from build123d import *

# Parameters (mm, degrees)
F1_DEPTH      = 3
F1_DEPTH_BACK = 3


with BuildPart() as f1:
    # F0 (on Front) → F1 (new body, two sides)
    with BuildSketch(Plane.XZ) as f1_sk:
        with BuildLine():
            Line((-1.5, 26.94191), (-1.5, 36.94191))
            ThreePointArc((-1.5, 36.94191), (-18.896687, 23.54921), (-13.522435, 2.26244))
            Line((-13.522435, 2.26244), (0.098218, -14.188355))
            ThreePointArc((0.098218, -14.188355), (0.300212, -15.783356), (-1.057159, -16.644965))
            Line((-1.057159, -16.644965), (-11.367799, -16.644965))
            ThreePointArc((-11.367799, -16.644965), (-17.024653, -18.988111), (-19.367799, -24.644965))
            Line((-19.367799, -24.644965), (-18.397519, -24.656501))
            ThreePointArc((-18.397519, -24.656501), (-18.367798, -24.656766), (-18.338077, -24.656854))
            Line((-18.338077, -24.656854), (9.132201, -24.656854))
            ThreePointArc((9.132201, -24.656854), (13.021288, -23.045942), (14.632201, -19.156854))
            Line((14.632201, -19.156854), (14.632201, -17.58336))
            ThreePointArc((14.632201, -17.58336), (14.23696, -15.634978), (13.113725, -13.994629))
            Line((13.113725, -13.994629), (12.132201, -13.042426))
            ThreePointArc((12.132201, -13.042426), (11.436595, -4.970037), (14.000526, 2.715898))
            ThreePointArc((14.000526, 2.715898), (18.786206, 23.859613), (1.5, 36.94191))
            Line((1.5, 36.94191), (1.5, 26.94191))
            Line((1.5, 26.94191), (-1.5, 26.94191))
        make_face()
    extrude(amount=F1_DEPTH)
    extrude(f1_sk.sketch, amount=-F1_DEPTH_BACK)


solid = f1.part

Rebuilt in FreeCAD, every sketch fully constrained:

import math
import FreeCAD as App
import Part
import Sketcher
from FreeCAD import Vector

doc = App.newDocument("Part")
params = doc.addObject("Spreadsheet::Sheet", "Params")
for row, (alias, value) in enumerate([
    ("sketch1_radius", "20.000001 mm"),
    ("sketch1_radius2", "8.000001 mm"),
    ("sketch1_radius3", "1.5 mm"),
    ("sketch1_radius4", "5.499999 mm"),
    ("sketch1_width", "3 mm"),
    ("pad1_length", "3 mm"),
    ("pad1_length2", "3 mm"),
], start=1):
    params.set(f"A{row}", alias)
    params.set(f"B{row}", "=" + value)
    params.setAlias(f"B{row}", alias)

body = doc.addObject("PartDesign::Body", "Body")

# Sketch on XZ plane
sketch1 = body.newObject("Sketcher::SketchObject", "Sketch")
sketch1.AttachmentSupport = (doc.getObject("XZ_Plane"), [""])
sketch1.MapMode = "FlatFace"
sketch1.addGeometry([
    Part.LineSegment(Vector(-1.5, 26.94191, 0), Vector(-1.5, 36.94191, 0)),  # 0
    Part.ArcOfCircle(Part.Circle(Vector(0.000001, 16.998239, 0), Vector(0, 0, 1), 20.000001), math.radians(94.301224), math.radians(227.458678)),  # 1
    Part.LineSegment(Vector(-13.522435, 2.26244, 0), Vector(0.098218, -14.188355, 0)),  # 2
    Part.ArcOfCircle(Part.Circle(Vector(-1.057159, -15.144965, 0), Vector(0, 0, 1), 1.5), math.radians(-89.999991), math.radians(39.623515)),  # 3
    Part.LineSegment(Vector(-1.057159, -16.644965, 0), Vector(-11.367799, -16.644965, 0)),  # 4
    Part.ArcOfCircle(Part.Circle(Vector(-11.367798, -24.644966, 0), Vector(0, 0, 1), 8.000001), math.radians(90.000006), math.radians(179.999994)),  # 5
    Part.LineSegment(Vector(-19.367799, -24.644965, 0), Vector(-18.397519, -24.656501, 0)),  # 6
    Part.ArcOfCircle(Part.Circle(Vector(-18.33816, -19.665936, 0), Vector(0, 0, 1), 4.990918), math.radians(-90.681456), math.radians(-89.999045)),  # 7
    Part.LineSegment(Vector(-18.338077, -24.656854, 0), Vector(9.132201, -24.656854, 0)),  # 8
    Part.ArcOfCircle(Part.Circle(Vector(9.132202, -19.156855, 0), Vector(0, 0, 1), 5.499999), math.radians(-90.000007), math.radians(0.000007)),  # 9
    Part.LineSegment(Vector(14.632201, -19.156854, 0), Vector(14.632201, -17.58336, 0)),  # 10
    Part.ArcOfCircle(Part.Circle(Vector(9.632199, -17.583361, 0), Vector(0, 0, 1), 5.000002), math.radians(0.000011), math.radians(45.868705)),  # 11
    Part.LineSegment(Vector(13.113725, -13.994629, 0), Vector(12.132201, -13.042426, 0)),  # 12
    Part.ArcOfCircle(Part.Circle(Vector(31.297496, -7.324768, 0), Vector(0, 0, 1), 20.000003), math.radians(149.865392), math.radians(196.611628)),  # 13
    Part.ArcOfCircle(Part.Circle(Vector(-0.000001, 16.998239, 0), Vector(0, 0, 1), 20), math.radians(-45.570884), math.radians(85.698776)),  # 14
    Part.LineSegment(Vector(1.5, 36.94191, 0), Vector(1.5, 26.94191, 0)),  # 15
    Part.LineSegment(Vector(1.5, 26.94191, 0), Vector(-1.5, 26.94191, 0)),  # 16
], False)
sketch1.addConstraint([
    Sketcher.Constraint("Coincident", 0, 2, 1, 1),
    Sketcher.Constraint("Coincident", 1, 2, 2, 1),
    Sketcher.Constraint("Tangent", 2, 2, 3, 2),
    Sketcher.Constraint("Tangent", 3, 1, 4, 1),
    Sketcher.Constraint("Tangent", 4, 2, 5, 1),
    Sketcher.Constraint("Coincident", 5, 2, 6, 1),
    Sketcher.Constraint("Coincident", 6, 2, 7, 1),
    Sketcher.Constraint("Coincident", 7, 2, 8, 1),
    Sketcher.Constraint("Tangent", 8, 2, 9, 1),
    Sketcher.Constraint("Tangent", 9, 2, 10, 1),
    Sketcher.Constraint("Tangent", 10, 2, 11, 1),
    Sketcher.Constraint("Tangent", 11, 2, 12, 1),
    Sketcher.Constraint("Coincident", 12, 2, 13, 2),
    Sketcher.Constraint("Coincident", 13, 1, 14, 1),
    Sketcher.Constraint("Coincident", 14, 2, 15, 1),
    Sketcher.Constraint("Coincident", 15, 2, 16, 1),
    Sketcher.Constraint("Coincident", 16, 2, 0, 1),
    Sketcher.Constraint("Vertical", 0),
    Sketcher.Constraint("Horizontal", 4),
    Sketcher.Constraint("Horizontal", 8),
    Sketcher.Constraint("Vertical", 10),
    Sketcher.Constraint("Vertical", 15),
    Sketcher.Constraint("Horizontal", 16),
    Sketcher.Constraint("Coincident", 14, 3, 1, 3),
    Sketcher.Constraint("Equal", 1, 14),
    Sketcher.Constraint("Symmetric", 0, 2, 14, 2, -2),
    Sketcher.Constraint("Radius", 1, 20.000001),
    Sketcher.Constraint("Radius", 5, 8.000001),
    Sketcher.Constraint("Radius", 3, 1.5),
    Sketcher.Constraint("Radius", 9, 5.499999),
    Sketcher.Constraint("DistanceX", 16, 2, 16, 1, 3.0),
    Sketcher.Constraint("DistanceY", 0, 1, 0, 2, 10.0),
    Sketcher.Constraint("DistanceY", 5, 2, 4, 2, 8.0),
    Sketcher.Constraint("DistanceX", 9, 3, 12, 2, 2.999999),
    Sketcher.Constraint("DistanceX", 5, 3, 9, 3, 20.5),
    Sketcher.Constraint("Radius", 7, 4.990918),
    Sketcher.Constraint("Radius", 11, 5.000002),
    Sketcher.Constraint("Radius", 13, 20.000003),
    Sketcher.Constraint("DistanceX", 7, 3, 3, 3, 17.281001),
    Sketcher.Constraint("DistanceX", 4, 2, 4, 1, 10.31064),
    Sketcher.Constraint("DistanceX", 8, 1, 8, 2, 27.470278),
    Sketcher.Constraint("DistanceX", 5, 3, -1, 1, 11.367798),
    Sketcher.Constraint("DistanceY", 6, 2, -1, 1, 24.656501),
    Sketcher.Constraint("DistanceY", 11, 3, 1, 3, 34.5816),
    Sketcher.Constraint("DistanceY", 1, 2, 14, 3, 14.735799),
    Sketcher.Constraint("DistanceY", 9, 3, 2, 2, 4.9685),
    Sketcher.Constraint("DistanceX", 11, 2, 13, 1, 0.886801),
    Sketcher.Constraint("Distance", 2, 21.357688),
    Sketcher.Constraint("Distance", 6, 0.970349),
    Sketcher.Constraint("Distance", 12, 1.367509),
])
sketch1.setExpression("Constraints[26]", "Params.sketch1_radius")
sketch1.setExpression("Constraints[27]", "Params.sketch1_radius2")
sketch1.setExpression("Constraints[28]", "Params.sketch1_radius3")
sketch1.setExpression("Constraints[29]", "Params.sketch1_radius4")
sketch1.setExpression("Constraints[30]", "Params.sketch1_width")
pad1 = body.newObject("PartDesign::Pad", "Pad")
pad1.Profile = sketch1
pad1.Type = "TwoLengths"
pad1.setExpression("Length", "Params.pad1_length")
pad1.setExpression("Length2", "Params.pad1_length2")

doc.recompute()
